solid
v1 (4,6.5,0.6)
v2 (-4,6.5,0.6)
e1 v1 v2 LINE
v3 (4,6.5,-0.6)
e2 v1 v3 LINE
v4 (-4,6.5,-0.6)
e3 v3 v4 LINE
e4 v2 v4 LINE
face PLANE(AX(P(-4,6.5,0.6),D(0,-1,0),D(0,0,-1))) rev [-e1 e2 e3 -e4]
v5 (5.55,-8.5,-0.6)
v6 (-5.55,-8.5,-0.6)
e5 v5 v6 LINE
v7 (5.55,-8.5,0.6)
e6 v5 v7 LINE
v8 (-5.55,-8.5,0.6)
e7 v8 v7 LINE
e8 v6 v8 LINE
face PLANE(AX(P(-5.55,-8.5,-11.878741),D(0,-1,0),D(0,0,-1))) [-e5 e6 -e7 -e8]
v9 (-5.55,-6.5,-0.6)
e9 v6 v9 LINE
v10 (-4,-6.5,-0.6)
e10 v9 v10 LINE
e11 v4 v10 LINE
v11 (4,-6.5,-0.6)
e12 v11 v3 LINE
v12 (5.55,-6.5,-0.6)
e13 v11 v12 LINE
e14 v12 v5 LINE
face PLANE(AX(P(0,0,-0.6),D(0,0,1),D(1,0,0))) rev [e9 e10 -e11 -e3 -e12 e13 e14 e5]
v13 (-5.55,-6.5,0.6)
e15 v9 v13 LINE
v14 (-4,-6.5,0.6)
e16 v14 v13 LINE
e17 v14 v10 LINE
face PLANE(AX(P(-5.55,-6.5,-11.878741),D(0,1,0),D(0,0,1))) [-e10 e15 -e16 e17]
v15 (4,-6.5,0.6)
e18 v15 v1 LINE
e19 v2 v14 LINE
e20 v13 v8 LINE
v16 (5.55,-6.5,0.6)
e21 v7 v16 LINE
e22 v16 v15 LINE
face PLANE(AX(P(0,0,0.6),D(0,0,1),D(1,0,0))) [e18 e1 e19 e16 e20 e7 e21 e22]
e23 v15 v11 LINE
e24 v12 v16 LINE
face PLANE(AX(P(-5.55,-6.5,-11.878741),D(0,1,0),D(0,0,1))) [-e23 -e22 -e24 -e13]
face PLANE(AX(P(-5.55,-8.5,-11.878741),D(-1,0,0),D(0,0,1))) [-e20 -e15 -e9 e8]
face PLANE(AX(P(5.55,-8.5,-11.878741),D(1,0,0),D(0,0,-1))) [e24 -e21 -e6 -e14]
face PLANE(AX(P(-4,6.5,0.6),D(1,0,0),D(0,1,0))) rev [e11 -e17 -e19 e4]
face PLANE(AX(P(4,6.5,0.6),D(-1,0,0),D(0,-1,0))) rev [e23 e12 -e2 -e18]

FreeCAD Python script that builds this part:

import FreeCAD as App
import Part
import Sketcher

V = App.Vector
Q = App.Units.Quantity

doc = App.newDocument("Part")
body = doc.addObject("PartDesign::Body", "Body")

sketch1 = body.newObject("Sketcher::SketchObject", "Sketch")
sketch1.AttachmentSupport = (doc.getObject("XY_Plane"), [""])
sketch1.MapMode = "FlatFace"
sketch1.addGeometry([
    Part.LineSegment(V(-4, 6.5, 0), V(-4, -6.5, 0)),
    Part.LineSegment(V(-4, -6.5, 0), V(4, -6.5, 0)),
    Part.LineSegment(V(4, -6.5, 0), V(4, 6.5, 0)),
    Part.LineSegment(V(4, 6.5, 0), V(-4, 6.5, 0)),
], False)
sketch1.addConstraint([
    Sketcher.Constraint("Coincident", 0, 2, 1, 1),
    Sketcher.Constraint("Coincident", 1, 2, 2, 1),
    Sketcher.Constraint("Coincident", 2, 2, 3, 1),
    Sketcher.Constraint("Coincident", 3, 2, 0, 1),
    Sketcher.Constraint("Vertical", 0),
    Sketcher.Constraint("Horizontal", 1),
    Sketcher.Constraint("Vertical", 2),
    Sketcher.Constraint("Horizontal", 3),
    Sketcher.Constraint("Symmetric", 0, 2, 2, 2, -1, 1),
    Sketcher.Constraint("DistanceX", 1, 1, 1, 2, Q("8 mm")),
    Sketcher.Constraint("DistanceY", 0, 2, 0, 1, Q("13 mm")),
])
pad1 = body.newObject("PartDesign::Pad", "Pad")
pad1.Profile = sketch1
pad1.Length = 1.2
pad1.Midplane = True

sketch2 = body.newObject("Sketcher::SketchObject", "Sketch001")
sketch2.AttachmentSupport = (doc.getObject("XY_Plane"), [""])
sketch2.MapMode = "FlatFace"
sketch2.AttachmentOffset = App.Placement(V(0, 0, 0.6), App.Rotation())
sketch2.addGeometry([
    Part.LineSegment(V(-5.55, -6.5, 0), V(-5.55, -8.5, 0)),
    Part.LineSegment(V(-5.55, -8.5, 0), V(5.55, -8.5, 0)),
    Part.LineSegment(V(5.55, -8.5, 0), V(5.55, -6.5, 0)),
    Part.LineSegment(V(5.55, -6.5, 0), V(-5.55, -6.5, 0)),
], False)
sketch2.addConstraint([
    Sketcher.Constraint("Coincident", 0, 2, 1, 1),
    Sketcher.Constraint("Coincident", 1, 2, 2, 1),
    Sketcher.Constraint("Coincident", 2, 2, 3, 1),
    Sketcher.Constraint("Coincident", 3, 2, 0, 1),
    Sketcher.Constraint("Vertical", 0),
    Sketcher.Constraint("Horizontal", 1),
    Sketcher.Constraint("Vertical", 2),
    Sketcher.Constraint("Horizontal", 3),
    Sketcher.Constraint("DistanceY", 0, 2, 0, 1, Q("2 mm")),
    Sketcher.Constraint("DistanceX", 1, 1, 1, 2, Q("11.1 mm")),
    Sketcher.Constraint("DistanceY", 0, 2, -1, 1, Q("8.5 mm")),
    Sketcher.Constraint("DistanceX", 0, 2, -1, 1, Q("5.55 mm")),
])
pad2 = body.newObject("PartDesign::Pad", "Pad001")
pad2.Profile = sketch2
pad2.Length = 1.2
pad2.Reversed = True

doc.recompute()
